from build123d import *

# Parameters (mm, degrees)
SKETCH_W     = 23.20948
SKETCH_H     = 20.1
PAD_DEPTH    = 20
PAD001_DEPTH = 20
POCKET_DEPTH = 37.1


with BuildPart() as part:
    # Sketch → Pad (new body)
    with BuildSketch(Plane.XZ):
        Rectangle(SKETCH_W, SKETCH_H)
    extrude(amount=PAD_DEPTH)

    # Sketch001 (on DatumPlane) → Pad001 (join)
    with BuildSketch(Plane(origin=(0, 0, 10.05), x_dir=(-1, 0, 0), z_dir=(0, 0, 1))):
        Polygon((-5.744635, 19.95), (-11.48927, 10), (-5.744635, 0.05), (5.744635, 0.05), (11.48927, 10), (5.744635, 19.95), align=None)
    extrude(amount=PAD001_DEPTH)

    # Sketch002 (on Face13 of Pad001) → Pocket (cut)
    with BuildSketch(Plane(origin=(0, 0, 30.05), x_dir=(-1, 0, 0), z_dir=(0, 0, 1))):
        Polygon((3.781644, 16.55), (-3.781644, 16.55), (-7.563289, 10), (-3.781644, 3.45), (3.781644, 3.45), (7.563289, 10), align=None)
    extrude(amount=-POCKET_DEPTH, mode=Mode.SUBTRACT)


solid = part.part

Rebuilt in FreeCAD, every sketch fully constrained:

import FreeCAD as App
import Part
import Sketcher
Q = App.Units.Quantity


def add_polygon(sketch, points):
    """Adds a closed chain of lines whose ends are joined by coincident constraints."""
    first, n = sketch.GeometryCount, len(points)
    for a, b in zip(points, points[1:] + points[:1]):
        sketch.addGeometry(Part.LineSegment(App.Vector(*a, 0), App.Vector(*b, 0)), False)
    for i in range(n):
        sketch.addConstraint(Sketcher.Constraint("Coincident", first + i, 2, first + (i + 1) % n, 1))

doc = App.newDocument("Part")
body = doc.addObject("PartDesign::Body", "Body")

# Sketch on XZ plane
sketch1 = body.newObject("Sketcher::SketchObject", "Sketch")
sketch1.AttachmentSupport = (doc.getObject("XZ_Plane"), [""])
sketch1.MapMode = "FlatFace"
add_polygon(sketch1, [(-11.60474, 10.05), (-11.60474, -10.05), (11.60474, -10.05), (11.60474, 10.05)])  # lines 0-3
sketch1.addConstraint([
    Sketcher.Constraint("Vertical", 0),
    Sketcher.Constraint("Horizontal", 1),
    Sketcher.Constraint("Vertical", 2),
    Sketcher.Constraint("Horizontal", 3),
    Sketcher.Constraint("Symmetric", 0, 2, 2, 2, -1, 1),
    Sketcher.Constraint("DistanceY", 0, 2, 0, 1, 20.1),
    Sketcher.Constraint("DistanceX", 1, 1, 1, 2, 23.20948),
])
pad1 = body.newObject("PartDesign::Pad", "Pad")
pad1.Profile = sketch1
pad1.Length = 20

# Sketch on XY plane
sketch2 = body.newObject("Sketcher::SketchObject", "Sketch001")
sketch2.AttachmentSupport = (doc.getObject("XY_Plane"), [""])
sketch2.MapMode = "FlatFace"
sketch2.AttachmentOffset = App.Placement(App.Vector(0, 0, 10.05), App.Rotation())
add_polygon(sketch2, [(5.744635, -19.95), (11.48927, -10), (5.744635, -0.05), (-5.744635, -0.05), (-11.48927, -10), (-5.744635, -19.95)])  # lines 0-5
sketch2.addConstraint([
    Sketcher.Constraint("Horizontal", 2),
    Sketcher.Constraint("Horizontal", 5),
    Sketcher.Constraint("Symmetric", 0, 2, 3, 2, -2),
    Sketcher.Constraint("Parallel", 0, 3),
    Sketcher.Constraint("Parallel", 1, 4),
    Sketcher.Constraint("Vertical", 2, 2, 4, 2),
    Sketcher.Constraint("Vertical", 1, 2, 5, 2),
    Sketcher.Constraint("Angle", 0, Q("60.000001 deg")),
    Sketcher.Constraint("DistanceY", 0, 2, -1, 1, 10.0),
    Sketcher.Constraint("DistanceY", 4, 2, 2, 2, 19.9),
    Sketcher.Constraint("DistanceX", 2, 2, 2, 1, 11.48927),
])
pad2 = body.newObject("PartDesign::Pad", "Pad001")
pad2.Profile = sketch2
pad2.Length = 20

# Sketch on XY plane
sketch3 = body.newObject("Sketcher::SketchObject", "Sketch002")
sketch3.AttachmentSupport = (doc.getObject("XY_Plane"), [""])
sketch3.MapMode = "FlatFace"
sketch3.AttachmentOffset = App.Placement(App.Vector(0, 0, 30.05), App.Rotation())
add_polygon(sketch3, [(-3.781644, -16.55), (3.781644, -16.55), (7.563289, -10), (3.781644, -3.45), (-3.781644, -3.45), (-7.563289, -10)])  # lines 0-5
sketch3.addConstraint([
    Sketcher.Constraint("Horizontal", 0),
    Sketcher.Constraint("Horizontal", 3),
    Sketcher.Constraint("Symmetric", 1, 2, 4, 2, -2),
    Sketcher.Constraint("Parallel", 1, 4),
    Sketcher.Constraint("Parallel", 2, 5),
    Sketcher.Constraint("Vertical", 0, 2, 2, 2),
    Sketcher.Constraint("Vertical", 3, 2, 5, 2),
    Sketcher.Constraint("Angle", 1, Q("59.999995 deg")),
    Sketcher.Constraint("DistanceY", 1, 2, -1, 1, 10.0),
    Sketcher.Constraint("DistanceY", 0, 2, 2, 2, 13.1),
    Sketcher.Constraint("DistanceX", 0, 1, 0, 2, 7.563288),
])
pocket1 = body.newObject("PartDesign::Pocket", "Pocket")
pocket1.Profile = sketch3
pocket1.Length = 37.1

doc.recompute()
